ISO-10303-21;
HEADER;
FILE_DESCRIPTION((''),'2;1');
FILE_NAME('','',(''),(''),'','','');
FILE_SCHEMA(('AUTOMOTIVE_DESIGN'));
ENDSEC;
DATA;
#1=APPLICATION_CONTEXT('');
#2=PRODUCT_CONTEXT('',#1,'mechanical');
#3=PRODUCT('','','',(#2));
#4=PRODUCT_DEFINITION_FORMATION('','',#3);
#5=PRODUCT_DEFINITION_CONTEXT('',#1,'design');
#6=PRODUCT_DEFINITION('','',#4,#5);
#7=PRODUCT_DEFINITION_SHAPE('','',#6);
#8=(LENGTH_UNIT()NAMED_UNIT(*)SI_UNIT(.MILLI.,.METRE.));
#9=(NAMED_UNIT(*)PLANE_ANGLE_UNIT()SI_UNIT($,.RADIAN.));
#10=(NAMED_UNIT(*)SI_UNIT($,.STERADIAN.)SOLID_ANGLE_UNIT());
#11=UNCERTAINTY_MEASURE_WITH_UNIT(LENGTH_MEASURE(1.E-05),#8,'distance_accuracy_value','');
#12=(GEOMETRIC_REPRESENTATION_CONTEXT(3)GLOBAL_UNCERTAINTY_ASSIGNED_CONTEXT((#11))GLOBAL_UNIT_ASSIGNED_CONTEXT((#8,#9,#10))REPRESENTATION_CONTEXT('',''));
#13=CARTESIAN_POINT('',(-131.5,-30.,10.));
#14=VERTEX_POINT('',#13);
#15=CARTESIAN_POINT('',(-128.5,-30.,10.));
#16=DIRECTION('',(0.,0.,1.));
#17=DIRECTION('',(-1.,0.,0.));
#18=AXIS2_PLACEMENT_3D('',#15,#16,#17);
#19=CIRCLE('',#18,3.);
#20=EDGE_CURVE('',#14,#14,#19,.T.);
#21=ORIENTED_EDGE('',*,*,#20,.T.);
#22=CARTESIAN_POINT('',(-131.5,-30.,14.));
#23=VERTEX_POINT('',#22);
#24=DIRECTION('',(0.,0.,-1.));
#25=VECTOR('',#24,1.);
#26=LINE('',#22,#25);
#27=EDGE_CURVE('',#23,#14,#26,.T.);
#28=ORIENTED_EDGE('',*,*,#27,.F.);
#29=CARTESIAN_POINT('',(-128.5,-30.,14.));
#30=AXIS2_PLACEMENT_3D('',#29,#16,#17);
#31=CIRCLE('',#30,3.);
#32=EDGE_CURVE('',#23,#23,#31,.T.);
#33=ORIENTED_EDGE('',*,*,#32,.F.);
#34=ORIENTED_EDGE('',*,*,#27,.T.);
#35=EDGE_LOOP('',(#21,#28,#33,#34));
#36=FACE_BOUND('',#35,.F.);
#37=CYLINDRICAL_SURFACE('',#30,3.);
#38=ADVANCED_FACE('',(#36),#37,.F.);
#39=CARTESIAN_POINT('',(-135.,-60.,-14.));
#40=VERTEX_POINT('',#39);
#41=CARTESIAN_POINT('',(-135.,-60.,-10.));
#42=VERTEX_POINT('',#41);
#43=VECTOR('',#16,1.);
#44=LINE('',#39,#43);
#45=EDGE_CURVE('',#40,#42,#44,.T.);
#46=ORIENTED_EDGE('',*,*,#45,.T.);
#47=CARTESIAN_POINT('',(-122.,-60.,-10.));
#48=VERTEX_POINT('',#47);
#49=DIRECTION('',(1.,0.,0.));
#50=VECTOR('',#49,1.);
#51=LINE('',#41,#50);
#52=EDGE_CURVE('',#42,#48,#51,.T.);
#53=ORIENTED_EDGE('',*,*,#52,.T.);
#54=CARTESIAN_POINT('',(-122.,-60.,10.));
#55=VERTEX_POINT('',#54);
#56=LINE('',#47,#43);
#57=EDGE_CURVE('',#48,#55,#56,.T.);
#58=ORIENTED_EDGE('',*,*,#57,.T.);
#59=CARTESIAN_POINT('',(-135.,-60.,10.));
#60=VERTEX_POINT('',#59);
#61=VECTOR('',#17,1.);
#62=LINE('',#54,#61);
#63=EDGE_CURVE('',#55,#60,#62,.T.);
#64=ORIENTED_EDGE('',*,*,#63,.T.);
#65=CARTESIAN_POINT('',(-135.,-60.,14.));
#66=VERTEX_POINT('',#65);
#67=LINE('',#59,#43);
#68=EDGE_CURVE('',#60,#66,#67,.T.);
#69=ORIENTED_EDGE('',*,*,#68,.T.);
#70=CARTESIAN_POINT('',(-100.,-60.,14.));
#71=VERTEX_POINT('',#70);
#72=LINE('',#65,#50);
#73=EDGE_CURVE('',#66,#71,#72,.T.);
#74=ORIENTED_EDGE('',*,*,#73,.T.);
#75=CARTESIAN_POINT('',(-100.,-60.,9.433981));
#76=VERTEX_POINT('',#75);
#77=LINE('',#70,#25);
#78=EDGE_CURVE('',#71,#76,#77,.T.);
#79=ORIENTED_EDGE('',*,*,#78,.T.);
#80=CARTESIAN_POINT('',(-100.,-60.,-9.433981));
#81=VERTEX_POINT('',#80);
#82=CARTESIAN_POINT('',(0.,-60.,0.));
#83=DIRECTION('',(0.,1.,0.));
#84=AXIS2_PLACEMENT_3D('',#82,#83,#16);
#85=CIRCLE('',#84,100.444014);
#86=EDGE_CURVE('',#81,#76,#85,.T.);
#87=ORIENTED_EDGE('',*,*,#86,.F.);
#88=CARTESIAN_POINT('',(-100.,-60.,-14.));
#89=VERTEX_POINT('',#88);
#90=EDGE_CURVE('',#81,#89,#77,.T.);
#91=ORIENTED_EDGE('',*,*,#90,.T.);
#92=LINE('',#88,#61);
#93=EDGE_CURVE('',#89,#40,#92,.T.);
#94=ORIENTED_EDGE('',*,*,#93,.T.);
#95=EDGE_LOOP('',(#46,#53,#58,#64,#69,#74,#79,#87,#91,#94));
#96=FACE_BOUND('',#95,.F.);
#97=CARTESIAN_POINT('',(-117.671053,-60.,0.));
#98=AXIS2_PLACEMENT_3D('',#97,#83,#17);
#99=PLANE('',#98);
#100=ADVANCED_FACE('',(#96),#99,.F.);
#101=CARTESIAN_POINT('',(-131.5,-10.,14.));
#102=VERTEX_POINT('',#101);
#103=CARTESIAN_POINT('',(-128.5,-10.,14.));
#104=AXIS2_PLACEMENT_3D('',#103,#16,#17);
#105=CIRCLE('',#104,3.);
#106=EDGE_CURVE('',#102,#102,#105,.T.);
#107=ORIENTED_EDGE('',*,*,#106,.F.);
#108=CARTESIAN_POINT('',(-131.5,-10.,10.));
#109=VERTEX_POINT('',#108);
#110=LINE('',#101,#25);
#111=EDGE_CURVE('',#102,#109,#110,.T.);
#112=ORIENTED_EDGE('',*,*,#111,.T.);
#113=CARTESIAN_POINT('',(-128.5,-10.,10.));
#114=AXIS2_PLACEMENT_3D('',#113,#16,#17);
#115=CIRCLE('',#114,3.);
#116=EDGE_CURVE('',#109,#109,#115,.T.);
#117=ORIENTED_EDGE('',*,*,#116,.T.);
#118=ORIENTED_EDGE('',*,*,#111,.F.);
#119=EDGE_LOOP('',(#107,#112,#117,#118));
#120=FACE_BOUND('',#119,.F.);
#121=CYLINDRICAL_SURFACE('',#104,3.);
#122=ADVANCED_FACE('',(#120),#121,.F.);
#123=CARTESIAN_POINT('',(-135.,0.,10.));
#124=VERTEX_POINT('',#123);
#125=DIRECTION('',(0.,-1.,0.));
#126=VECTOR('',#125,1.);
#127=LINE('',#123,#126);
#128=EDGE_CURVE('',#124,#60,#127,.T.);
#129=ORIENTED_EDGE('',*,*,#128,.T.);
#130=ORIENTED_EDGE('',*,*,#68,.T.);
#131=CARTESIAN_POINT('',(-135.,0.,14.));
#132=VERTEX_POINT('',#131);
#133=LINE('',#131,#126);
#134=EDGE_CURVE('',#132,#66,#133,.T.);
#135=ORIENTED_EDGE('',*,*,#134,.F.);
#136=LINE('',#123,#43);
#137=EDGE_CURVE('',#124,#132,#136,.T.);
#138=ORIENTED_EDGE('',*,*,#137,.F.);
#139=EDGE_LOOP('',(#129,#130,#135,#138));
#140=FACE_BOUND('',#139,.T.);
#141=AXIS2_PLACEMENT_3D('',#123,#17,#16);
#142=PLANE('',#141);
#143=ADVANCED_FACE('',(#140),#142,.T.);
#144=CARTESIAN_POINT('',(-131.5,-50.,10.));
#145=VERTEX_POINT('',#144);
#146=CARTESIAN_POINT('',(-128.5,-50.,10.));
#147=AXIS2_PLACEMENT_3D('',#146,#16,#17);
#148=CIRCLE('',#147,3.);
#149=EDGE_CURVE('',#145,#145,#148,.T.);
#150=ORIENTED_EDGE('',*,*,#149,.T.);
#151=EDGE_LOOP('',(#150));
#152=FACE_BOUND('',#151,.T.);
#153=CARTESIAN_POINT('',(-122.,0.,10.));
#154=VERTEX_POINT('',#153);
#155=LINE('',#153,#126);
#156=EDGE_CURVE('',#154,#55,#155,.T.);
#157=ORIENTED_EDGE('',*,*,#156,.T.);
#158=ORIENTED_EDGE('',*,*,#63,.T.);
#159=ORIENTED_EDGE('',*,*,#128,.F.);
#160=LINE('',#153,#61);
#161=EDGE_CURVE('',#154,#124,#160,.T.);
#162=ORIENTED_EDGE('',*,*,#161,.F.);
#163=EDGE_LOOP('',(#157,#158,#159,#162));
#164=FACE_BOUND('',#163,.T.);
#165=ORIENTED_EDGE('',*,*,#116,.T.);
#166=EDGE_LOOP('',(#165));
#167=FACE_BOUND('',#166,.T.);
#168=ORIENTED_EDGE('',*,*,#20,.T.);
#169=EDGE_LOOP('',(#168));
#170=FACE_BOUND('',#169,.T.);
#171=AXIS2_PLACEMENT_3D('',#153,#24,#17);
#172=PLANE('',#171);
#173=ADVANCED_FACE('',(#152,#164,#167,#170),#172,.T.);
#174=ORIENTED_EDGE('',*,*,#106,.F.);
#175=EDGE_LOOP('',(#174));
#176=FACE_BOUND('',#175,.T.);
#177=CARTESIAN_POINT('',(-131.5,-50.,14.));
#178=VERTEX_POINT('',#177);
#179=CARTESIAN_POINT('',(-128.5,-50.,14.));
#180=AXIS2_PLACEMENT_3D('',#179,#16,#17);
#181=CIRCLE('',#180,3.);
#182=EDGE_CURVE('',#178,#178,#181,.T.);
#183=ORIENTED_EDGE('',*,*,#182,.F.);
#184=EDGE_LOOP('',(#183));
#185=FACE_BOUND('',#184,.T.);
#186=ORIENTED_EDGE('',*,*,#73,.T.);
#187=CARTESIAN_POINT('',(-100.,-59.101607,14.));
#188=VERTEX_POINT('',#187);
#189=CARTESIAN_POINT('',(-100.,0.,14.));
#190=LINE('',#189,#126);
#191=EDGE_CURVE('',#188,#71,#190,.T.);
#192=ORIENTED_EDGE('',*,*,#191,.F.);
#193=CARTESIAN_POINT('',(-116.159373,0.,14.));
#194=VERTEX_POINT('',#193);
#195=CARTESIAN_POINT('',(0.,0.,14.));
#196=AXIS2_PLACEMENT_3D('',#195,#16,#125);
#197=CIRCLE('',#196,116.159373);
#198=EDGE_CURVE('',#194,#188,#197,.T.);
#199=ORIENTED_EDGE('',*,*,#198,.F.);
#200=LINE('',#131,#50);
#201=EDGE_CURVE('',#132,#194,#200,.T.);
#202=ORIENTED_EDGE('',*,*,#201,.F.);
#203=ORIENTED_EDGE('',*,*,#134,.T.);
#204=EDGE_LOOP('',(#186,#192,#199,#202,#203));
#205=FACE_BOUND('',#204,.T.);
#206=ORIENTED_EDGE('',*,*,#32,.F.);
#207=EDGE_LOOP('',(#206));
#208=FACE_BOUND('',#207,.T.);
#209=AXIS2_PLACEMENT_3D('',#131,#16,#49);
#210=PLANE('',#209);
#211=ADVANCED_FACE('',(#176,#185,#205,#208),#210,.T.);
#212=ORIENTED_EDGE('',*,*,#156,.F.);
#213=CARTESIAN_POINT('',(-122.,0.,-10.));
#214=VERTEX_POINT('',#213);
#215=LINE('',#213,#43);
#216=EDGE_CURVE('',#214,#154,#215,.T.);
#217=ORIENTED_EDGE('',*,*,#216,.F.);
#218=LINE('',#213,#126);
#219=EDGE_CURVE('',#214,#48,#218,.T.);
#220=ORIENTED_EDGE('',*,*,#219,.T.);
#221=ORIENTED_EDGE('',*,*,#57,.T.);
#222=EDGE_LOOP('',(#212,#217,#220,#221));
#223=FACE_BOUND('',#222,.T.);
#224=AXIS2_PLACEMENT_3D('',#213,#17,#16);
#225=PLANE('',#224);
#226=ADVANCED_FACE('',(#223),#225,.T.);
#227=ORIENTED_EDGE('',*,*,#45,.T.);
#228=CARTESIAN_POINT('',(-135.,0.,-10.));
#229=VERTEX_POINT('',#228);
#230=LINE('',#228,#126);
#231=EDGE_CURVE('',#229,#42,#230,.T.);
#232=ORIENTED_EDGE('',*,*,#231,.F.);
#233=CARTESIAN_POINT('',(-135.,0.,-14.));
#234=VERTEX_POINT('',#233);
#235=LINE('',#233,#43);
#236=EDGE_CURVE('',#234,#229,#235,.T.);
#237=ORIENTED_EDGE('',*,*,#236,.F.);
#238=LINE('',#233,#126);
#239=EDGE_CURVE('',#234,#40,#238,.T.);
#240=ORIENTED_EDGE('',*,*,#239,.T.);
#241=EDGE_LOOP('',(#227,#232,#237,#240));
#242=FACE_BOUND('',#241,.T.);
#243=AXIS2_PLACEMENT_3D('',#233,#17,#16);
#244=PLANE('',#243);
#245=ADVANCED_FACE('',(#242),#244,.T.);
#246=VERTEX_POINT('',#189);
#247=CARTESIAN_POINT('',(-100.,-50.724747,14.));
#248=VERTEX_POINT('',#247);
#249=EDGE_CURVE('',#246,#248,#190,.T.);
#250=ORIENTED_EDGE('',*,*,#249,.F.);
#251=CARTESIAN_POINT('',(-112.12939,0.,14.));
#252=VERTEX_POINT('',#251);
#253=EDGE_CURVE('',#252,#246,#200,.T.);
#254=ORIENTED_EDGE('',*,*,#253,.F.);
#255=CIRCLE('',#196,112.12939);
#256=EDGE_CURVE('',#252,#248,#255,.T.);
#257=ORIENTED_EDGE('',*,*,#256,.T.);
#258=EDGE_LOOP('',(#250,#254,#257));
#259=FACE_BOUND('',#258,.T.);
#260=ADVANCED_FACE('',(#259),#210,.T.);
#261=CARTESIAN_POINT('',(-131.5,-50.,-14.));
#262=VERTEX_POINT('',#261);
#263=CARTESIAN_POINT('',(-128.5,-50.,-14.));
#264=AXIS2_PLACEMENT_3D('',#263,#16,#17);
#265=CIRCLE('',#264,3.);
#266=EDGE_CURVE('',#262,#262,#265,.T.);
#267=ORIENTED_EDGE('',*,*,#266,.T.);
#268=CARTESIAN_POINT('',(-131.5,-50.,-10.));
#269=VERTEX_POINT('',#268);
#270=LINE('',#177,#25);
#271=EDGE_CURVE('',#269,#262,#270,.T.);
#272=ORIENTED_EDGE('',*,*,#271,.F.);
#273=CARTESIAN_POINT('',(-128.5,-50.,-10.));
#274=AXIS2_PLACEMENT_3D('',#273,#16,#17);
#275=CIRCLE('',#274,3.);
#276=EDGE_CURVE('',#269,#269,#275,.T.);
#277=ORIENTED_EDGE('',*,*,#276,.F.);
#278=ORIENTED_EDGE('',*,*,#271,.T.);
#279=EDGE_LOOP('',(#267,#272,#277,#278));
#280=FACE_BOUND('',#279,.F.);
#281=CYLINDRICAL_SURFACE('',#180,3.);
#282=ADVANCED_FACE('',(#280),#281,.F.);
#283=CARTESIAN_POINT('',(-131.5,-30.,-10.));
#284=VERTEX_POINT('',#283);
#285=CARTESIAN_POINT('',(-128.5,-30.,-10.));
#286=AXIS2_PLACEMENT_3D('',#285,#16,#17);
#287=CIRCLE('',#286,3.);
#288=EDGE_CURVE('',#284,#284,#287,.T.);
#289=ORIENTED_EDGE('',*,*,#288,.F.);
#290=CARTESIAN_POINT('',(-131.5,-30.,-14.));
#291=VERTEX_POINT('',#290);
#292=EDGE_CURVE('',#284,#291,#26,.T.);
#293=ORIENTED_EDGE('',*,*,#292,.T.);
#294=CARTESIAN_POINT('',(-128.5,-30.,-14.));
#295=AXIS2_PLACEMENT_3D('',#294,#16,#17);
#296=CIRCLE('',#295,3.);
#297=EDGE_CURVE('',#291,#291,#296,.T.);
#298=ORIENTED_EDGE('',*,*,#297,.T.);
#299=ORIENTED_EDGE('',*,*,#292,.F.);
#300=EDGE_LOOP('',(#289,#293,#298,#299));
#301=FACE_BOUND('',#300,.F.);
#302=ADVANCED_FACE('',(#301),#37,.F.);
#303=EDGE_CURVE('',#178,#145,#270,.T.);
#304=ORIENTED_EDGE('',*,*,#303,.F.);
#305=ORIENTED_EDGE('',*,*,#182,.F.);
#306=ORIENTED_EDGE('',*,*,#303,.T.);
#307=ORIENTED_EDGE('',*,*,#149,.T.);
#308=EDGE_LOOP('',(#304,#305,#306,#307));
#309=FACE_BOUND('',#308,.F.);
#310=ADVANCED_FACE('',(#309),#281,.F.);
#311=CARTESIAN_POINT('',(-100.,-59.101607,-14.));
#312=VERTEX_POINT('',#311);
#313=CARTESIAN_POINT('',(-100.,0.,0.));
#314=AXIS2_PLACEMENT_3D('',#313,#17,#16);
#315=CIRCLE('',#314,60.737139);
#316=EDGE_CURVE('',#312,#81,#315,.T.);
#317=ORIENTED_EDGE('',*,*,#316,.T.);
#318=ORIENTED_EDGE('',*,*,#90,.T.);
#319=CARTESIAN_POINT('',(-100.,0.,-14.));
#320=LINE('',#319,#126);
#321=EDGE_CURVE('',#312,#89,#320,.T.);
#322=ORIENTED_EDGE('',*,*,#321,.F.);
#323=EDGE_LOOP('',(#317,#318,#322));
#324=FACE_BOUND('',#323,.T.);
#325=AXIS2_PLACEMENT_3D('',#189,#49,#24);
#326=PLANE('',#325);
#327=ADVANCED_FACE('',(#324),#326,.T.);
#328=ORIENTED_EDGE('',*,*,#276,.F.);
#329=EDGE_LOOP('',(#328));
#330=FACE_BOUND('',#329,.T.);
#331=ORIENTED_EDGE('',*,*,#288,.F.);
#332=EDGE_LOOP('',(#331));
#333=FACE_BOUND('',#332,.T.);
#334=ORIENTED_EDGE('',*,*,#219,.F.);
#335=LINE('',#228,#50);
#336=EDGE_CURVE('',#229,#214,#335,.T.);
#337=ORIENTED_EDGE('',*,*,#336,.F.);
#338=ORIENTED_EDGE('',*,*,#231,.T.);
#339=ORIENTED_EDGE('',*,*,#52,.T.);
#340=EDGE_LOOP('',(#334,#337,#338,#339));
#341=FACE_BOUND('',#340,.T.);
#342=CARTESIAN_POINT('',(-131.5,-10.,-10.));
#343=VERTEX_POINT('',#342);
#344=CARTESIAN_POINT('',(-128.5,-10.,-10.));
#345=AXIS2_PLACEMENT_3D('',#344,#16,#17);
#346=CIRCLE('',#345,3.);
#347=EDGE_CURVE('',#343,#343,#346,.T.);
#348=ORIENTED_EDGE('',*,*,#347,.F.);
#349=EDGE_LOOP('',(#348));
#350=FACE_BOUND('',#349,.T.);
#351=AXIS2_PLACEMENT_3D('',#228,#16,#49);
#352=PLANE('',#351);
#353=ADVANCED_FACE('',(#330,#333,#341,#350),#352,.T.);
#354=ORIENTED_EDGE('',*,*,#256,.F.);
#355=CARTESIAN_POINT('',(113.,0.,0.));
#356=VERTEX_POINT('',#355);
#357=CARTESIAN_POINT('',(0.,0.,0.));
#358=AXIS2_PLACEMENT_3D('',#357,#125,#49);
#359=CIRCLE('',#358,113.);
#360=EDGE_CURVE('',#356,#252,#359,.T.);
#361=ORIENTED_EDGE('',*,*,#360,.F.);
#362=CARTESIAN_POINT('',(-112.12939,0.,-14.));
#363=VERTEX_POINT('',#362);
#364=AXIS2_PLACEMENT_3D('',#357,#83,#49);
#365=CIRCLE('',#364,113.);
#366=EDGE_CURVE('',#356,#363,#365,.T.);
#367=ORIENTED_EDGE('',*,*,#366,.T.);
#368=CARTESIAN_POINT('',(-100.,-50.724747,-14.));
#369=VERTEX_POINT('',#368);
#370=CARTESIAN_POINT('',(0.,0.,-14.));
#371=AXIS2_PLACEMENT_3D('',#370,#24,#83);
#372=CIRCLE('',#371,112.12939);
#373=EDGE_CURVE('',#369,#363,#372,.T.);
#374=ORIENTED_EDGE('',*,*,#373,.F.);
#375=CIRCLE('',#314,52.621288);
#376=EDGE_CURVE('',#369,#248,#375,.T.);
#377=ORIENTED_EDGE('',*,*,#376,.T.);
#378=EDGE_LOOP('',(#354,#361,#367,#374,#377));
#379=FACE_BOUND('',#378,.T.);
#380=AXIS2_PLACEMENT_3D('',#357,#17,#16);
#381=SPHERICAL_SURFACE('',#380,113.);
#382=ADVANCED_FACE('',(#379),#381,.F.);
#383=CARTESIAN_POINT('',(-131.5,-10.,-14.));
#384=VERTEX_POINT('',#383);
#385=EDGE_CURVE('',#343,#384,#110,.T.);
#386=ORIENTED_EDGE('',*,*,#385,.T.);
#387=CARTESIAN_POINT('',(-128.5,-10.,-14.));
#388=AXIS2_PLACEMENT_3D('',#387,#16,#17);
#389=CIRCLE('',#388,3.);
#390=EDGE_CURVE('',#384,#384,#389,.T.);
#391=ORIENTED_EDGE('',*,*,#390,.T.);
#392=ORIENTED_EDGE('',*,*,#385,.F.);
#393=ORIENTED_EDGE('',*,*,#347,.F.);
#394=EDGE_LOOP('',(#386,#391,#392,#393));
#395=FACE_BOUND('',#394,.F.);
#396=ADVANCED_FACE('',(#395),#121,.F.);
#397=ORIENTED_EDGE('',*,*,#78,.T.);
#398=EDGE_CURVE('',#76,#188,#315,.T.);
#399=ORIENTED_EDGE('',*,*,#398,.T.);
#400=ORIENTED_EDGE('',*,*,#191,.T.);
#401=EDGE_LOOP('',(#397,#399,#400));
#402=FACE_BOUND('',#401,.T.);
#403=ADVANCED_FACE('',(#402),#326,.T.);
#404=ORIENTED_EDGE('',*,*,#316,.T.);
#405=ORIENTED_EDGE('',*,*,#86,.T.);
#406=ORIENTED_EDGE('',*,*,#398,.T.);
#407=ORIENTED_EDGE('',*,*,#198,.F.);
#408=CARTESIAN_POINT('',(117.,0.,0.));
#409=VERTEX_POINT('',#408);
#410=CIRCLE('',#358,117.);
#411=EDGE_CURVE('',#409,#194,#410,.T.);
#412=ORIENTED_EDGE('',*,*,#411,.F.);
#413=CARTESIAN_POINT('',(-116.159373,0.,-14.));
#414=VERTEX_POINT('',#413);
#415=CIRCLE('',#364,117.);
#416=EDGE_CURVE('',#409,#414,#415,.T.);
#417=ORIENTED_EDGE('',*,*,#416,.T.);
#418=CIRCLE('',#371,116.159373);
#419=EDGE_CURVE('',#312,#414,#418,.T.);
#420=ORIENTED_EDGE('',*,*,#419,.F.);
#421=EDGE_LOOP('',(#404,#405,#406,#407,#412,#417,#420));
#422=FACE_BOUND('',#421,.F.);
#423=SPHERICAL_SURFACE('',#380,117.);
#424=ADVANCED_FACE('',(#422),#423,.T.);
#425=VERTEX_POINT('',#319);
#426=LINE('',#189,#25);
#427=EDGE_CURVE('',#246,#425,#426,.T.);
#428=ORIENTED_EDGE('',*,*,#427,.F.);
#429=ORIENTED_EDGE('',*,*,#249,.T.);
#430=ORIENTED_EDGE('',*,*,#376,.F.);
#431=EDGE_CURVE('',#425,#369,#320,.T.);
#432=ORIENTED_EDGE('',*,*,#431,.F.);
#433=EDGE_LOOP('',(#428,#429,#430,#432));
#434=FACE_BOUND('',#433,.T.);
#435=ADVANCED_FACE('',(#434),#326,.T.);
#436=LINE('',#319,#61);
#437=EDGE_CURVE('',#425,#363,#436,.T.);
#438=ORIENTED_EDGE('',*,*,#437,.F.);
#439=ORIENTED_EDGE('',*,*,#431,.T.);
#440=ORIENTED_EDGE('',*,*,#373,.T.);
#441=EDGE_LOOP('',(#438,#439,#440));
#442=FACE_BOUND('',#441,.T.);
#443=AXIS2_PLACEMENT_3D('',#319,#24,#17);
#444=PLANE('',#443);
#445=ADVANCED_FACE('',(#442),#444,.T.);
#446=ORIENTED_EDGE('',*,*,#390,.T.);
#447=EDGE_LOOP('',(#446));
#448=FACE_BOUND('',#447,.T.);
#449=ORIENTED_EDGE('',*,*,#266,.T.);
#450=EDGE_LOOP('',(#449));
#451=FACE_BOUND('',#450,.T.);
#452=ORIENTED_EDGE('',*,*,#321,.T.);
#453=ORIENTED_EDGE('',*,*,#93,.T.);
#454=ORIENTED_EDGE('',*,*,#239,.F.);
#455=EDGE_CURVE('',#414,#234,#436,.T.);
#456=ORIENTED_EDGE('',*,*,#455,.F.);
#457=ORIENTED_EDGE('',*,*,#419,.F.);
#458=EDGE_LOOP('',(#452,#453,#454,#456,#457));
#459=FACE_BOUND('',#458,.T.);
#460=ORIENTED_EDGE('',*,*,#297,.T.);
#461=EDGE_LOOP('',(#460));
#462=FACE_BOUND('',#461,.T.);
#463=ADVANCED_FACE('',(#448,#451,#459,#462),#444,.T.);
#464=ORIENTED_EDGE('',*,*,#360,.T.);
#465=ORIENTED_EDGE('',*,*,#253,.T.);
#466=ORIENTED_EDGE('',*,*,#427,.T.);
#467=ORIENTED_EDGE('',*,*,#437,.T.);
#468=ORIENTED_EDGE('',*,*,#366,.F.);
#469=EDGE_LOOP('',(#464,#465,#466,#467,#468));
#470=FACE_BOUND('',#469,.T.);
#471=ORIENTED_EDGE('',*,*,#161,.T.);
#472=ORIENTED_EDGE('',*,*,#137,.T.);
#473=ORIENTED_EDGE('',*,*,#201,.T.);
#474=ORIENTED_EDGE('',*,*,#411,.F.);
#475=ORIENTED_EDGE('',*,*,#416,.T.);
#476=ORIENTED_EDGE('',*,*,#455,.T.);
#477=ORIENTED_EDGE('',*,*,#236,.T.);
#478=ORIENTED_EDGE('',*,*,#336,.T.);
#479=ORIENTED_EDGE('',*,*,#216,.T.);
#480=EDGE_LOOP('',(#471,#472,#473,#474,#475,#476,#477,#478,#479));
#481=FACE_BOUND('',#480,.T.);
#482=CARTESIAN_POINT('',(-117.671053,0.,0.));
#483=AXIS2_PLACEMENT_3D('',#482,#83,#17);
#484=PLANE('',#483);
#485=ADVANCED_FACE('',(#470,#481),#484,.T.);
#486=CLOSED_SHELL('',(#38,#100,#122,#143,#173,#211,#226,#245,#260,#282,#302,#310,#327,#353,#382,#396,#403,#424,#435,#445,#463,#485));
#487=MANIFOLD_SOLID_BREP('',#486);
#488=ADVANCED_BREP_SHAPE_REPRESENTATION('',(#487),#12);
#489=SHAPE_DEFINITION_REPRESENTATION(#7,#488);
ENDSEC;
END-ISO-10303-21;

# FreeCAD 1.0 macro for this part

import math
import FreeCAD as App
import Part
import Sketcher

V = App.Vector
Q = App.Units.Quantity


def add_polygon(sketch, points):
    """Adds a closed chain of lines whose ends are joined by coincident constraints."""
    first, n = sketch.GeometryCount, len(points)
    for a, b in zip(points, points[1:] + points[:1]):
        sketch.addGeometry(Part.LineSegment(App.Vector(*a, 0), App.Vector(*b, 0)), False)
    for i in range(n):
        sketch.addConstraint(Sketcher.Constraint("Coincident", first + i, 2, first + (i + 1) % n, 1))

doc = App.newDocument("Part")
body = doc.addObject("PartDesign::Body", "Body")

sketch1 = body.newObject("Sketcher::SketchObject", "Sketch")
sketch1.AttachmentSupport = (doc.getObject("XZ_Plane"), [""])
sketch1.MapMode = "FlatFace"
sketch1.addGeometry([
    Part.ArcOfCircle(Part.Circle(V(0, 0, 0), V(0, 0, 1), 117), math.radians(0), math.radians(180)),
    Part.LineSegment(V(-117, 0, 0), V(-113, 0, 0)),
    Part.ArcOfCircle(Part.Circle(V(0, 0, 0), V(0, 0, 1), 113), math.radians(0), math.radians(180)),
    Part.LineSegment(V(113, 0, 0), V(117, 0, 0)),
], False)
sketch1.addConstraint([
    Sketcher.Constraint("Coincident", 0, 2, 1, 1),
    Sketcher.Constraint("Coincident", 1, 2, 2, 2),
    Sketcher.Constraint("Coincident", 2, 1, 3, 1),
    Sketcher.Constraint("Coincident", 3, 2, 0, 1),
    Sketcher.Constraint("Horizontal", 1),
    Sketcher.Constraint("Horizontal", 3),
    Sketcher.Constraint("Coincident", 0, 3, -1, 1),
    Sketcher.Constraint("Coincident", 2, 3, -1, 1),
    Sketcher.Constraint("PointOnObject", 0, 2, -1),
    Sketcher.Constraint("PointOnObject", 2, 1, -1),
    Sketcher.Constraint("Radius", 0, Q("117 mm")),
    Sketcher.Constraint("Radius", 2, Q("113 mm")),
])
revolution = body.newObject("PartDesign::Revolution", "Revolution")
revolution.Profile = sketch1
revolution.ReferenceAxis = (sketch1, ["H_Axis"])
revolution.Angle = 180

sketch2 = body.newObject("Sketcher::SketchObject", "Sketch001")
sketch2.AttachmentSupport = (doc.getObject("XZ_Plane"), [""])
sketch2.MapMode = "FlatFace"
add_polygon(sketch2, [(-100, -14), (-100, 14), (-135, 14), (-135, 10), (-122, 10), (-122, -10), (-135, -10), (-135, -14)])
sketch2.addConstraint([
    Sketcher.Constraint("Vertical", 0),
    Sketcher.Constraint("Horizontal", 1),
    Sketcher.Constraint("Vertical", 2),
    Sketcher.Constraint("Horizontal", 3),
    Sketcher.Constraint("Vertical", 4),
    Sketcher.Constraint("Horizontal", 5),
    Sketcher.Constraint("Vertical", 6),
    Sketcher.Constraint("Horizontal", 7),
    Sketcher.Constraint("Symmetric", 2, 2, 5, 2, -1),
    Sketcher.Constraint("Equal", 2, 6),
    Sketcher.Constraint("DistanceX", 1, 2, 1, 1, Q("35 mm")),
    Sketcher.Constraint("DistanceX", 3, 1, 3, 2, Q("13 mm")),
    Sketcher.Constraint("DistanceY", 0, 1, 0, 2, Q("28 mm")),
    Sketcher.Constraint("DistanceY", 2, 2, 2, 1, Q("4 mm")),
    Sketcher.Constraint("DistanceX", 0, 2, -1, 1, Q("100 mm")),
])
pad1 = body.newObject("PartDesign::Pad", "Pad")
pad1.Profile = sketch2
pad1.Length = 60

sketch3 = body.newObject("Sketcher::SketchObject", "Sketch002")
sketch3.AttachmentSupport = (doc.getObject("XY_Plane"), [""])
sketch3.MapMode = "FlatFace"
sketch3.AttachmentOffset = App.Placement(V(0, 0, 14), App.Rotation())
sketch3.addGeometry([
    Part.Circle(V(-128.5, -10, 0), V(0, 0, 1), 3),
    Part.Circle(V(-128.5, -30, 0), V(0, 0, 1), 3),
    Part.Circle(V(-128.5, -50, 0), V(0, 0, 1), 3),
], False)
sketch3.addConstraint([
    Sketcher.Constraint("Equal", 0, 1),
    Sketcher.Constraint("Equal", 1, 2),
    Sketcher.Constraint("Vertical", 0, 3, 1, 3),
    Sketcher.Constraint("Vertical", 1, 3, 2, 3),
    Sketcher.Constraint("Diameter", 0, Q("6 mm")),
    Sketcher.Constraint("DistanceY", 0, 3, -1, 1, Q("10 mm")),
    Sketcher.Constraint("DistanceY", 1, 3, -1, 1, Q("30 mm")),
    Sketcher.Constraint("DistanceY", 2, 3, -1, 1, Q("50 mm")),
    Sketcher.Constraint("DistanceX", 0, 3, -1, 1, Q("128.5 mm")),
])
pocket1 = body.newObject("PartDesign::Pocket", "Pocket")
pocket1.Profile = sketch3
pocket1.Type = "ThroughAll"

doc.recompute()
